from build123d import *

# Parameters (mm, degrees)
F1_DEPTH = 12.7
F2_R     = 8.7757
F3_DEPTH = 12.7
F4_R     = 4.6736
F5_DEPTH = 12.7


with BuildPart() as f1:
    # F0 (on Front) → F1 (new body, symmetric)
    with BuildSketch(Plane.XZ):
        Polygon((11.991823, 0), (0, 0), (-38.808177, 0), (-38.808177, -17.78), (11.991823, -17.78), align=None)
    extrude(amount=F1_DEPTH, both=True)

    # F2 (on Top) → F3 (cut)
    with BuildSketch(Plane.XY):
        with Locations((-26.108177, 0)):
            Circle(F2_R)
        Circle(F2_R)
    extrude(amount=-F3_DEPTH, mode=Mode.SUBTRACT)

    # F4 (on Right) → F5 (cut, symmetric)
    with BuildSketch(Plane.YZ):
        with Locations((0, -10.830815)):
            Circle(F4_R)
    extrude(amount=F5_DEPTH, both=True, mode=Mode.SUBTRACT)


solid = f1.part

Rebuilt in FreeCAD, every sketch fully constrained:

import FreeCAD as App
import Part
import Sketcher
Q = App.Units.Quantity


def add_polygon(sketch, points):
    """Adds a closed chain of lines whose ends are joined by coincident constraints."""
    first, n = sketch.GeometryCount, len(points)
    for a, b in zip(points, points[1:] + points[:1]):
        sketch.addGeometry(Part.LineSegment(App.Vector(*a, 0), App.Vector(*b, 0)), False)
    for i in range(n):
        sketch.addConstraint(Sketcher.Constraint("Coincident", first + i, 2, first + (i + 1) % n, 1))

doc = App.newDocument("Part")
body = doc.addObject("PartDesign::Body", "Body")

# Sketch on XZ plane
sketch1 = doc.addObject("Sketcher::SketchObject", "Sketch")
body.addObject(sketch1)
sketch1.AttachmentSupport = (doc.XZ_Plane, [""])
sketch1.MapMode = "FlatFace"
add_polygon(sketch1, [(11.991823, 0), (-38.808177, 0), (-38.808177, -17.78), (11.991823, -17.78)])  # lines 0-3
sketch1.addConstraint([
    Sketcher.Constraint("Horizontal", 0),
    Sketcher.Constraint("Vertical", 1),
    Sketcher.Constraint("Horizontal", 2),
    Sketcher.Constraint("Vertical", 3),
    Sketcher.Constraint("PointOnObject", 0, 2, -1),
    Sketcher.Constraint("DistanceX", 0, 2, 0, 1, Q("2 in")),
    Sketcher.Constraint("DistanceY", 1, 2, 1, 1, Q("0.7 in")),
    Sketcher.Constraint("DistanceX", 0, 2, -1, 1, 38.808177),
])
pad1 = doc.addObject("PartDesign::Pad", "Pad")
body.addObject(pad1)
pad1.Profile = sketch1
pad1.Length = Q("1 in")
pad1.Midplane = True

# Sketch on XY plane
sketch2 = doc.addObject("Sketcher::SketchObject", "Sketch001")
body.addObject(sketch2)
sketch2.AttachmentSupport = (doc.XY_Plane, [""])
sketch2.MapMode = "FlatFace"
sketch2.addGeometry([
    Part.Circle(App.Vector(-26.108177, 0, 0), App.Vector(0, 0, 1), 8.7757),
    Part.Circle(App.Vector(0, 0, 0), App.Vector(0, 0, 1), 8.7757),
], False)
sketch2.addConstraint([
    Sketcher.Constraint("Coincident", 1, 3, -1, 1),
    Sketcher.Constraint("Equal", 0, 1),
    Sketcher.Constraint("PointOnObject", 0, 3, -1),
    Sketcher.Constraint("Diameter", 0, Q("0.691 in")),
    Sketcher.Constraint("DistanceX", 0, 3, -1, 1, 26.108177),
])
pocket1 = doc.addObject("PartDesign::Pocket", "Pocket")
body.addObject(pocket1)
pocket1.Profile = sketch2
pocket1.Length = Q("0.5 in")

# Sketch on YZ plane
sketch3 = doc.addObject("Sketcher::SketchObject", "Sketch002")
body.addObject(sketch3)
sketch3.AttachmentSupport = (doc.YZ_Plane, [""])
sketch3.MapMode = "FlatFace"
sketch3.addGeometry(Part.Circle(App.Vector(0, -10.830815, 0), App.Vector(0, 0, 1), 4.6736), False)
sketch3.addConstraint([
    Sketcher.Constraint("PointOnObject", 0, 3, -2),
    Sketcher.Constraint("Diameter", 0, Q("0.368 in")),
    Sketcher.Constraint("DistanceY", 0, 3, -1, 1, 10.830815),
])
pocket2 = doc.addObject("PartDesign::Pocket", "Pocket001")
body.addObject(pocket2)
pocket2.Profile = sketch3
pocket2.Length = Q("1 in")
pocket2.Midplane = True

doc.recompute()
